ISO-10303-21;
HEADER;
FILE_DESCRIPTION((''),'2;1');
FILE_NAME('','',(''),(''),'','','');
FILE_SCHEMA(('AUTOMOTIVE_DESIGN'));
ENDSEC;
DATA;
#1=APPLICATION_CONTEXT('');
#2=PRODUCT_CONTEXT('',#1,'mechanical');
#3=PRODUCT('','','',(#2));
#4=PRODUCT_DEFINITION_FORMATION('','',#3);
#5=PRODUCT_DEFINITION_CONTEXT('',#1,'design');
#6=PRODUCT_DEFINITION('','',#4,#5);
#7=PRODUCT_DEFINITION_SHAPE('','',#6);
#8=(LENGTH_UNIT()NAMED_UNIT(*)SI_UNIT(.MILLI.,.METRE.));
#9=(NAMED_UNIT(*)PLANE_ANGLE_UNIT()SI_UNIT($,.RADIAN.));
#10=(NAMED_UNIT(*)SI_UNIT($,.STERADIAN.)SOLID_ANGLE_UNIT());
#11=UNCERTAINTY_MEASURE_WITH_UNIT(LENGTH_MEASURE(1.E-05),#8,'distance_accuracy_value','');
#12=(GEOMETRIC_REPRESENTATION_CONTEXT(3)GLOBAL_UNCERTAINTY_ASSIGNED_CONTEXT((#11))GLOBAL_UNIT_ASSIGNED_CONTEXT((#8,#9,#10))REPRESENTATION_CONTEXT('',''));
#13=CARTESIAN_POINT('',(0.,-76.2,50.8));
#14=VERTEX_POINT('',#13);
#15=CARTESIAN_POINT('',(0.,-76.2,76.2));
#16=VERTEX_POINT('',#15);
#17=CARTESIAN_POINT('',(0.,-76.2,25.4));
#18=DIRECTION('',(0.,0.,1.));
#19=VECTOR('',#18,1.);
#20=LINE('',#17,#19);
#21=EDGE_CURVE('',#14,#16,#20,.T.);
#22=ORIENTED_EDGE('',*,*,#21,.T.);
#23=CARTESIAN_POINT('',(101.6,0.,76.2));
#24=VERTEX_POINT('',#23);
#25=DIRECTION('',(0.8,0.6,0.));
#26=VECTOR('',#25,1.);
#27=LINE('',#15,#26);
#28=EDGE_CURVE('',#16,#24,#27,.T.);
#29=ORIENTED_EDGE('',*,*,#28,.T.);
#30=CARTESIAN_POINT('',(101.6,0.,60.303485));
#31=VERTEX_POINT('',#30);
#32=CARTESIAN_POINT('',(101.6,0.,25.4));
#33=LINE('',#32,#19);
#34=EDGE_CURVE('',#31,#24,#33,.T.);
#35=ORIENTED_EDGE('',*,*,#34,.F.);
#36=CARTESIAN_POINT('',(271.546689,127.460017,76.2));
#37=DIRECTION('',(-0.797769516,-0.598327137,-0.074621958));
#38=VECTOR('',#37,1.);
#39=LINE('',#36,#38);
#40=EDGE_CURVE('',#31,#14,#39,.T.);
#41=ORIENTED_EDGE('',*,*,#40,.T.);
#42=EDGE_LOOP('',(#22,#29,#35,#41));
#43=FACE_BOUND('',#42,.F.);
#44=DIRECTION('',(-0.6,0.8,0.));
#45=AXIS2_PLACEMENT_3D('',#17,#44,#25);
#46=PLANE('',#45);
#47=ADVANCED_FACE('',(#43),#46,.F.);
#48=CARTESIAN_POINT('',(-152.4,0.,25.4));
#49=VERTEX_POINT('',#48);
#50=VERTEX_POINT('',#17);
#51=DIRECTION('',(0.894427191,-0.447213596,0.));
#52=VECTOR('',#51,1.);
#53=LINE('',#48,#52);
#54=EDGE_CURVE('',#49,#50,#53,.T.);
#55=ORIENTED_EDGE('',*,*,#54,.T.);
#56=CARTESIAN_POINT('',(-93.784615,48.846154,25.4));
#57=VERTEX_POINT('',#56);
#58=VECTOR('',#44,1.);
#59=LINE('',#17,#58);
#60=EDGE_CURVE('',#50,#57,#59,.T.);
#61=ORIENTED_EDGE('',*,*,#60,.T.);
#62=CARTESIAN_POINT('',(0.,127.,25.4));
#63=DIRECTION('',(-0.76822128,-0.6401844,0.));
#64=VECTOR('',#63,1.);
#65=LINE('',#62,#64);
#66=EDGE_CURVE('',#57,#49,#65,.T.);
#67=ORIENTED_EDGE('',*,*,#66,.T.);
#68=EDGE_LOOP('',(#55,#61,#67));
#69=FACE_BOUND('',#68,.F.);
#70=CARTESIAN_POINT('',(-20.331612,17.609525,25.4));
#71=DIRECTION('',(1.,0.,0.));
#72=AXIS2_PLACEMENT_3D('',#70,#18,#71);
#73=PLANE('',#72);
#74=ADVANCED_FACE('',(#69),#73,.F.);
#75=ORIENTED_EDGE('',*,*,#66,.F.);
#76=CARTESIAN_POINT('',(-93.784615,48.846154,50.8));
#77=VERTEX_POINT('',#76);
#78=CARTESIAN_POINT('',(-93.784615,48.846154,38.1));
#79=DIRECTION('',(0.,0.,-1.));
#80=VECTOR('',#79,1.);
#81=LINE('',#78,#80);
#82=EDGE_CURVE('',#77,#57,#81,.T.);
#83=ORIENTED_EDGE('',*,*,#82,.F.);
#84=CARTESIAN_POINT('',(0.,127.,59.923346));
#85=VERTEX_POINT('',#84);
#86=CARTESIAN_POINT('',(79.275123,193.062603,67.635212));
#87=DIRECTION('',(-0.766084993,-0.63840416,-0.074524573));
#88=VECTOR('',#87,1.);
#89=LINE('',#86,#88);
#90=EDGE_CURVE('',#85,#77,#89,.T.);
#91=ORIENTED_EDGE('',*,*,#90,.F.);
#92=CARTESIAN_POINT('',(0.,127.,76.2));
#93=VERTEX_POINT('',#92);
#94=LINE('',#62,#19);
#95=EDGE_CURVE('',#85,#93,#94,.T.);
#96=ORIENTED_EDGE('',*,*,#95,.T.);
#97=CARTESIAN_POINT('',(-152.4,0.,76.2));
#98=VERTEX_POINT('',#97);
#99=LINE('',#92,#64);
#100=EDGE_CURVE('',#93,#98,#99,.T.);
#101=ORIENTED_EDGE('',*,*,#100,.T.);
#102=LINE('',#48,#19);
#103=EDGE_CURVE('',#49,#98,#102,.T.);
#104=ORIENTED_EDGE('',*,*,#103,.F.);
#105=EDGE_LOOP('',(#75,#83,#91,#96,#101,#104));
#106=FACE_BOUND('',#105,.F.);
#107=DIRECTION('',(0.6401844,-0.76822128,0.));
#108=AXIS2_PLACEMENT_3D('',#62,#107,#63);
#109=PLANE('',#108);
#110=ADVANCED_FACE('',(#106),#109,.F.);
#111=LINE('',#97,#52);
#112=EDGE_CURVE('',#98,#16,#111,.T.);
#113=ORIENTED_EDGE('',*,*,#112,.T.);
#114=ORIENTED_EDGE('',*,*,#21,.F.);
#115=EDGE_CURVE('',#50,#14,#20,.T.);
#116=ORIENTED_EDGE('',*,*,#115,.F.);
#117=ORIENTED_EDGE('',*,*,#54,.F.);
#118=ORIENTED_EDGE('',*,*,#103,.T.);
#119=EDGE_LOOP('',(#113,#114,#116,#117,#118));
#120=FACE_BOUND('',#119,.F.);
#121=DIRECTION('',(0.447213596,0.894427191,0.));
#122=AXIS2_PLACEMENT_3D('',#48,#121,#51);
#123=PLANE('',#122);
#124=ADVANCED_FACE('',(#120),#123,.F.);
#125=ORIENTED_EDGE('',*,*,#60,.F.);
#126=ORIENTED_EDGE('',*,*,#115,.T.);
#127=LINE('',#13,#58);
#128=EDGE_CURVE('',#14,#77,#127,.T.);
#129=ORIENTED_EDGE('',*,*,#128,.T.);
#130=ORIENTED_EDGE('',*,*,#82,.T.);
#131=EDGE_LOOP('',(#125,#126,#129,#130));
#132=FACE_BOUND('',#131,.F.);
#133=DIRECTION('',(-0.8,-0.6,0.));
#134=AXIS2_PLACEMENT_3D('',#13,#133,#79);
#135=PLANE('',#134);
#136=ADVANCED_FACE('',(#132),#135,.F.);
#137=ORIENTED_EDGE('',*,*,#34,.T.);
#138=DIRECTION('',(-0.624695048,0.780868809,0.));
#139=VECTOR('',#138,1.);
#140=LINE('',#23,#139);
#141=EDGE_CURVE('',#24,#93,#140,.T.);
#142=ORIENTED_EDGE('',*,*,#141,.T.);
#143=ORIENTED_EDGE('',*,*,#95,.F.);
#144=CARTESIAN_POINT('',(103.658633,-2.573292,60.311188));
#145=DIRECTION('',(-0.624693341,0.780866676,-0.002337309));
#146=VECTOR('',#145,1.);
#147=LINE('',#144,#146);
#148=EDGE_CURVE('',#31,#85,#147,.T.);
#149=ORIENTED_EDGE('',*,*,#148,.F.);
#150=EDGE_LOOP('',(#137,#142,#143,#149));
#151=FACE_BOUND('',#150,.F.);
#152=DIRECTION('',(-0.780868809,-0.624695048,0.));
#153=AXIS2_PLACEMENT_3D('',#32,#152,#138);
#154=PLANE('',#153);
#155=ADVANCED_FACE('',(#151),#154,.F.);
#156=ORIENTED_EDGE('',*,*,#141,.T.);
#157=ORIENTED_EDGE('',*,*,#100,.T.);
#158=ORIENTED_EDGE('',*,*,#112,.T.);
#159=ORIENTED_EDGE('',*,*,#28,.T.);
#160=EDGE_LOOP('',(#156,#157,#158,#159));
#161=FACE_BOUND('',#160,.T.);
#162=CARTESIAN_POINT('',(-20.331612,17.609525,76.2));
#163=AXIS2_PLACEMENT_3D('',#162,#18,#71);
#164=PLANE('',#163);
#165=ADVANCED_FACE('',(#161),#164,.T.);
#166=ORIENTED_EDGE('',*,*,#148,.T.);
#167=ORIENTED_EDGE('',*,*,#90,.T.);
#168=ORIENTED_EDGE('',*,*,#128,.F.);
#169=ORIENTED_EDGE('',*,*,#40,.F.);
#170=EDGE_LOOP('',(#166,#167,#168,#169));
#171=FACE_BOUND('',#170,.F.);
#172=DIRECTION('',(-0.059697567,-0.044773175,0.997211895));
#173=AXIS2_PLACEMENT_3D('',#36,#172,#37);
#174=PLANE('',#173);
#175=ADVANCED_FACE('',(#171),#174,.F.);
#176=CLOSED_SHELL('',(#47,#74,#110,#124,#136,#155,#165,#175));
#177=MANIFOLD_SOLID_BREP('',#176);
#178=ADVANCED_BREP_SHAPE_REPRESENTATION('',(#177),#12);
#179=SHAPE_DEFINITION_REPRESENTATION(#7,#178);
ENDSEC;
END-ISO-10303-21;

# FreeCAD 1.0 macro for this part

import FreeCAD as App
import Part
import Sketcher
Q = App.Units.Quantity


def add_polygon(sketch, points):
    """Adds a closed chain of lines whose ends are joined by coincident constraints."""
    first, n = sketch.GeometryCount, len(points)
    for a, b in zip(points, points[1:] + points[:1]):
        sketch.addGeometry(Part.LineSegment(App.Vector(*a, 0), App.Vector(*b, 0)), False)
    for i in range(n):
        sketch.addConstraint(Sketcher.Constraint("Coincident", first + i, 2, first + (i + 1) % n, 1))

doc = App.newDocument("Part")
body = doc.addObject("PartDesign::Body", "Body")

# Sketch on XY plane
sketch1 = doc.addObject("Sketcher::SketchObject", "Sketch")
body.addObject(sketch1)
sketch1.AttachmentSupport = (doc.XY_Plane, [""])
sketch1.MapMode = "FlatFace"
sketch1.AttachmentOffset = App.Placement(App.Vector(0, 0, 1 * 25.4), App.Rotation())
add_polygon(sketch1, [(0, 127), (-152, 0), (0, -76), (102, 0)])  # lines 0-3
sketch1.addConstraint(Sketcher.Constraint("PointOnObject", 0, 2, -1))
sketch1.addConstraint(Sketcher.Constraint("PointOnObject", 1, 2, -2))
sketch1.addConstraint(Sketcher.Constraint("PointOnObject", 2, 2, -1))
sketch1.addConstraint(Sketcher.Constraint("PointOnObject", 3, 2, -2))
sketch1.addConstraint(Sketcher.Constraint("Distance", 2, Q("5 in")))
sketch1.addConstraint(Sketcher.Constraint("DistanceX", 0, 2, -1, 1, Q("6 in")))
sketch1.addConstraint(Sketcher.Constraint("DistanceY", 1, 2, -1, 1, Q("3 in")))
sketch1.addConstraint(Sketcher.Constraint("DistanceY", -1, 1, 3, 2, Q("5 in")))
pad1 = doc.addObject("PartDesign::Pad", "Pad")
body.addObject(pad1)
pad1.Profile = sketch1
pad1.Length = Q("2 in")

# Sketch on an angled plane
sketch2 = doc.addObject("Sketcher::SketchObject", "Sketch001")
body.addObject(sketch2)
sketch2.Placement = App.Placement(App.Vector(36.576, -48.768, 0), App.Rotation(App.Vector(0.8, 0.6, 0), App.Vector(0, 0, 1), App.Vector(0.6, -0.8, 0), "ZXY"))
add_polygon(sketch2, [(-46, 25), (294, 25), (294, 76), (-46, 51)])  # lines 0-3
sketch2.addConstraint(Sketcher.Constraint("Horizontal", 0))
sketch2.addConstraint(Sketcher.Constraint("Vertical", 3))
sketch2.addConstraint(Sketcher.Constraint("DistanceY", 3, 2, 3, 1, Q("1 in")))
sketch2.addConstraint(Sketcher.Constraint("DistanceY", -1, 1, 0, 2, Q("1 in")))
sketch2.addConstraint(Sketcher.Constraint("DistanceY", -1, 1, 1, 2, Q("3 in")))
sketch2.addConstraint(Sketcher.Constraint("DistanceX", 2, 2, -1, 1, Q("1.8 in")))
sketch2.addConstraint(Sketcher.Constraint("DistanceX", 0, 1, 0, 2, 340.007443))
sketch2.addConstraint(Sketcher.Constraint("DistanceX", -1, 1, 1, 2, 293.713361))
pocket1 = doc.addObject("PartDesign::Pocket", "Pocket")
body.addObject(pocket1)
pocket1.Profile = sketch2
pocket1.Type = "ThroughAll"

doc.recompute()
